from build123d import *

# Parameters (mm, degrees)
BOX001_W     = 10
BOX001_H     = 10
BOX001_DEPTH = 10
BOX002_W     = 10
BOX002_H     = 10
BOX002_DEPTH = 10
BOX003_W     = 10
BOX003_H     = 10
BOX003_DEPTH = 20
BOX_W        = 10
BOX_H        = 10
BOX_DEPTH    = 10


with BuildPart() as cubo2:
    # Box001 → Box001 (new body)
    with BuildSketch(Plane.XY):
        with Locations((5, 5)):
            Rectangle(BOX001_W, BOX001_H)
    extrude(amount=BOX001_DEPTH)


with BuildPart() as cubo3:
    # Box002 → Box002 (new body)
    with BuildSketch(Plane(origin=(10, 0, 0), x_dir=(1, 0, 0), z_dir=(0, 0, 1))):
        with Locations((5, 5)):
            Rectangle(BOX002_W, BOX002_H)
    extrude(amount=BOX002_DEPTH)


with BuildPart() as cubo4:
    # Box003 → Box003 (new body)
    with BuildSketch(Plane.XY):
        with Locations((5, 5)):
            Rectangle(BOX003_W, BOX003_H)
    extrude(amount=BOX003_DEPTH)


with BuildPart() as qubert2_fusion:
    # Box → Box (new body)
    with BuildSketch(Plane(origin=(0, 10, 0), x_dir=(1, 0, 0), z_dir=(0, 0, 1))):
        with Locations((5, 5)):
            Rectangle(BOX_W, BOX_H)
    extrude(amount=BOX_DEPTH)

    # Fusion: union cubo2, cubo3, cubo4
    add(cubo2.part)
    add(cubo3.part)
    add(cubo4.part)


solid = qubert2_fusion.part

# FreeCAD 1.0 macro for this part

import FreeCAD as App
import Part
import Sketcher
from FreeCAD import Vector

doc = App.newDocument("Part")
body = doc.addObject("PartDesign::Body", "Body")

# Sketch on XY plane
sketch1 = body.newObject("Sketcher::SketchObject", "Sketch")
sketch1.AttachmentSupport = (doc.getObject("XY_Plane"), [""])
sketch1.MapMode = "FlatFace"
sketch1.addGeometry([
    Part.LineSegment(Vector(0, 10, 0), Vector(0, 0, 0)),
    Part.LineSegment(Vector(0, 0, 0), Vector(10, 0, 0)),
    Part.LineSegment(Vector(10, 0, 0), Vector(10, 10, 0)),
    Part.LineSegment(Vector(10, 10, 0), Vector(0, 10, 0)),
], False)
sketch1.addConstraint([
    Sketcher.Constraint("Coincident", 0, 2, 1, 1),
    Sketcher.Constraint("Coincident", 1, 2, 2, 1),
    Sketcher.Constraint("Coincident", 2, 2, 3, 1),
    Sketcher.Constraint("Coincident", 3, 2, 0, 1),
    Sketcher.Constraint("Vertical", 0),
    Sketcher.Constraint("Horizontal", 1),
    Sketcher.Constraint("Vertical", 2),
    Sketcher.Constraint("Horizontal", 3),
    Sketcher.Constraint("Coincident", 0, 2, -1, 1),
    Sketcher.Constraint("Equal", 3, 0),
    Sketcher.Constraint("DistanceX", 1, 1, 1, 2, 10.0),
])
pad1 = body.newObject("PartDesign::Pad", "Pad")
pad1.Profile = sketch1
pad1.Length = 10
body2 = doc.addObject("PartDesign::Body", "Body001")

# Sketch on XY plane
sketch2 = body2.newObject("Sketcher::SketchObject", "Sketch001")
sketch2.AttachmentSupport = (doc.getObject("XY_Plane001"), [""])
sketch2.MapMode = "FlatFace"
sketch2.addGeometry([
    Part.LineSegment(Vector(10, 10, 0), Vector(10, 0, 0)),
    Part.LineSegment(Vector(10, 0, 0), Vector(20, 0, 0)),
    Part.LineSegment(Vector(20, 0, 0), Vector(20, 10, 0)),
    Part.LineSegment(Vector(20, 10, 0), Vector(10, 10, 0)),
], False)
sketch2.addConstraint([
    Sketcher.Constraint("Coincident", 0, 2, 1, 1),
    Sketcher.Constraint("Coincident", 1, 2, 2, 1),
    Sketcher.Constraint("Coincident", 2, 2, 3, 1),
    Sketcher.Constraint("Coincident", 3, 2, 0, 1),
    Sketcher.Constraint("Vertical", 0),
    Sketcher.Constraint("Horizontal", 1),
    Sketcher.Constraint("Vertical", 2),
    Sketcher.Constraint("Horizontal", 3),
    Sketcher.Constraint("PointOnObject", 0, 2, -1),
    Sketcher.Constraint("Equal", 3, 0),
    Sketcher.Constraint("DistanceX", 1, 1, 1, 2, 10.0),
    Sketcher.Constraint("DistanceX", -1, 1, 0, 2, 10.0),
])
pad2 = body2.newObject("PartDesign::Pad", "Pad001")
pad2.Profile = sketch2
pad2.Length = 10
body3 = doc.addObject("PartDesign::Body", "Body002")

# Sketch on XY plane
sketch3 = body3.newObject("Sketcher::SketchObject", "Sketch002")
sketch3.AttachmentSupport = (doc.getObject("XY_Plane002"), [""])
sketch3.MapMode = "FlatFace"
sketch3.addGeometry([
    Part.LineSegment(Vector(0, 10, 0), Vector(0, 0, 0)),
    Part.LineSegment(Vector(0, 0, 0), Vector(10, 0, 0)),
    Part.LineSegment(Vector(10, 0, 0), Vector(10, 10, 0)),
    Part.LineSegment(Vector(10, 10, 0), Vector(0, 10, 0)),
], False)
sketch3.addConstraint([
    Sketcher.Constraint("Coincident", 0, 2, 1, 1),
    Sketcher.Constraint("Coincident", 1, 2, 2, 1),
    Sketcher.Constraint("Coincident", 2, 2, 3, 1),
    Sketcher.Constraint("Coincident", 3, 2, 0, 1),
    Sketcher.Constraint("Vertical", 0),
    Sketcher.Constraint("Horizontal", 1),
    Sketcher.Constraint("Vertical", 2),
    Sketcher.Constraint("Horizontal", 3),
    Sketcher.Constraint("Coincident", 0, 2, -1, 1),
    Sketcher.Constraint("Equal", 3, 0),
    Sketcher.Constraint("DistanceX", 1, 1, 1, 2, 10.0),
])
pad3 = body3.newObject("PartDesign::Pad", "Pad002")
pad3.Profile = sketch3
pad3.Length = 20
body4 = doc.addObject("PartDesign::Body", "Body003")

# Sketch on XY plane
sketch4 = body4.newObject("Sketcher::SketchObject", "Sketch003")
sketch4.AttachmentSupport = (doc.getObject("XY_Plane003"), [""])
sketch4.MapMode = "FlatFace"
sketch4.addGeometry([
    Part.LineSegment(Vector(0, 20, 0), Vector(0, 10, 0)),
    Part.LineSegment(Vector(0, 10, 0), Vector(10, 10, 0)),
    Part.LineSegment(Vector(10, 10, 0), Vector(10, 20, 0)),
    Part.LineSegment(Vector(10, 20, 0), Vector(0, 20, 0)),
], False)
sketch4.addConstraint([
    Sketcher.Constraint("Coincident", 0, 2, 1, 1),
    Sketcher.Constraint("Coincident", 1, 2, 2, 1),
    Sketcher.Constraint("Coincident", 2, 2, 3, 1),
    Sketcher.Constraint("Coincident", 3, 2, 0, 1),
    Sketcher.Constraint("Vertical", 0),
    Sketcher.Constraint("Horizontal", 1),
    Sketcher.Constraint("Vertical", 2),
    Sketcher.Constraint("Horizontal", 3),
    Sketcher.Constraint("PointOnObject", 0, 2, -2),
    Sketcher.Constraint("Equal", 3, 0),
    Sketcher.Constraint("DistanceX", 1, 1, 1, 2, 10.0),
    Sketcher.Constraint("DistanceY", -1, 1, 0, 2, 10.0),
])
pad4 = body4.newObject("PartDesign::Pad", "Pad003")
pad4.Profile = sketch4
pad4.Length = 10
doc.recompute()

boolean = body4.newObject("PartDesign::Boolean", "Boolean")
boolean.Type = "Fuse"
boolean.addObjects([body])
doc.recompute()

boolean2 = body4.newObject("PartDesign::Boolean", "Boolean001")
boolean2.Type = "Fuse"
boolean2.addObjects([body2])
doc.recompute()

boolean3 = body4.newObject("PartDesign::Boolean", "Boolean002")
boolean3.Type = "Fuse"
boolean3.addObjects([body3])

doc.recompute()
